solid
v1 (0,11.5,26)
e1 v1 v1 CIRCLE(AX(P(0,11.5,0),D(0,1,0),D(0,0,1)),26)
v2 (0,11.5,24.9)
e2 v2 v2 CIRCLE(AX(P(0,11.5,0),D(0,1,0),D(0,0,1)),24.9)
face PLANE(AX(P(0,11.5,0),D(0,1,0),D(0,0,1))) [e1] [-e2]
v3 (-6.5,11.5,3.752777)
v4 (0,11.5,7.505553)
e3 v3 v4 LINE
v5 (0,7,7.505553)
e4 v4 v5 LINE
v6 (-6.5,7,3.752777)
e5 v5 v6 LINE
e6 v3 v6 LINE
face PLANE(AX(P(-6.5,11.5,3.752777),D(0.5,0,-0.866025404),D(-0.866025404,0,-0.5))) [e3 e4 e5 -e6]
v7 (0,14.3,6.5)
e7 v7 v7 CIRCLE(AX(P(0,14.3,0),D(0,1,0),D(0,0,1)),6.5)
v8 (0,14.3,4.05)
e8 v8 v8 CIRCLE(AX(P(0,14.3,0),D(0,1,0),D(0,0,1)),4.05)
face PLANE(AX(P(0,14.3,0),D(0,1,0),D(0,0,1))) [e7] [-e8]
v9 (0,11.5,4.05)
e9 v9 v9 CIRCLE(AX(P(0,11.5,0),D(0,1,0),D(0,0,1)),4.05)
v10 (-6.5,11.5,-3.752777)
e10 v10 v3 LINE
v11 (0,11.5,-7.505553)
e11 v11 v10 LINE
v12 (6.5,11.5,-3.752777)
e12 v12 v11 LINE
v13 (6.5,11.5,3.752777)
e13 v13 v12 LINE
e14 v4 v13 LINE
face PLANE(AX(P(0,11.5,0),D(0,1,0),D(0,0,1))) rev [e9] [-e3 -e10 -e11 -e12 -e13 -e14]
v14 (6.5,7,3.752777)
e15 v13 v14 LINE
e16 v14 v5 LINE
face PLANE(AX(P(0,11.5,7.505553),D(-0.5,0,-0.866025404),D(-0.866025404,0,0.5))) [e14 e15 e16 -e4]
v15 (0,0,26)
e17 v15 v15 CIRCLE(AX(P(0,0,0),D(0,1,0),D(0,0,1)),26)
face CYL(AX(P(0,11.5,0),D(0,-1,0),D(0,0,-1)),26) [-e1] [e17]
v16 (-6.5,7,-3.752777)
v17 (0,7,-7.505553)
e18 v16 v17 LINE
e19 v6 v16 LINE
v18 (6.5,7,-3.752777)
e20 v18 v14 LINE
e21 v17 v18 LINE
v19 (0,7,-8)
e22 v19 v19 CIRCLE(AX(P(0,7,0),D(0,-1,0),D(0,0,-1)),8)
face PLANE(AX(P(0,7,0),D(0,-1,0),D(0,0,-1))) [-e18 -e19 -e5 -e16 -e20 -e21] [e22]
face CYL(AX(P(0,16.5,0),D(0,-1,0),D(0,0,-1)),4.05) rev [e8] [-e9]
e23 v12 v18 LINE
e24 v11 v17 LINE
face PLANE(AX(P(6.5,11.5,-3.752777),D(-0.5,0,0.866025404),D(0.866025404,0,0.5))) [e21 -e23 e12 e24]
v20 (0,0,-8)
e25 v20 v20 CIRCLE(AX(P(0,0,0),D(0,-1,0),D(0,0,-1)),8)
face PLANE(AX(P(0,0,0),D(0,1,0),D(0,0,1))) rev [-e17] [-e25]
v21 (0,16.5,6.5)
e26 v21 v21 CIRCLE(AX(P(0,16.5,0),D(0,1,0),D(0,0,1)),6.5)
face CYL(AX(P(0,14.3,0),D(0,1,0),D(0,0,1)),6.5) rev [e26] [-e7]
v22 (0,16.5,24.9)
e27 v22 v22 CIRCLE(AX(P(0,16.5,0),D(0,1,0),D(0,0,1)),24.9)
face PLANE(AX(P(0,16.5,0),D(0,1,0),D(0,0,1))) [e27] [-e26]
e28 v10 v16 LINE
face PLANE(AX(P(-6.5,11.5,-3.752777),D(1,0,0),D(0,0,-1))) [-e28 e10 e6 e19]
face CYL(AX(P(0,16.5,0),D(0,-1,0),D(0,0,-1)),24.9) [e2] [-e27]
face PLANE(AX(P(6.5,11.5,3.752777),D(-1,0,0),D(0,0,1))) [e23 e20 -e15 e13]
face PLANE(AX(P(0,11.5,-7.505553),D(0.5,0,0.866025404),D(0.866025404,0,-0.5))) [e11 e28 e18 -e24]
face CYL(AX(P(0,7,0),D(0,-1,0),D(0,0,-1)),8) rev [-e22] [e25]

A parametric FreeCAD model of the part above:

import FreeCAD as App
import Part
import Sketcher
Q = App.Units.Quantity


def add_polygon(sketch, points):
    """Adds a closed chain of lines whose ends are joined by coincident constraints."""
    first, n = sketch.GeometryCount, len(points)
    for a, b in zip(points, points[1:] + points[:1]):
        sketch.addGeometry(Part.LineSegment(App.Vector(*a, 0), App.Vector(*b, 0)), False)
    for i in range(n):
        sketch.addConstraint(Sketcher.Constraint("Coincident", first + i, 2, first + (i + 1) % n, 1))

doc = App.newDocument("Part")
body = doc.addObject("PartDesign::Body", "Body")

sketch1 = body.newObject("Sketcher::SketchObject", "Sketch")
sketch1.AttachmentSupport = (doc.getObject("XZ_Plane"), [""])
sketch1.MapMode = "FlatFace"
sketch1.addGeometry(Part.Circle(App.Vector(0, 0, 0), App.Vector(0, 0, 1), 26), False)
add_polygon(sketch1, [(-6, -4), (0, -8), (6, -4), (6, 4), (0, 8), (-6, 4)])
sketch1.addConstraint(Sketcher.Constraint("Vertical", 3))
sketch1.addConstraint(Sketcher.Constraint("Vertical", 6))
sketch1.addConstraint(Sketcher.Constraint("Coincident", 0, 3, -1, 1))
sketch1.addConstraint(Sketcher.Constraint("Symmetric", 1, 2, 4, 2, -1, 1))
sketch1.addConstraint(Sketcher.Constraint("Symmetric", 2, 2, 5, 2, -1, 1))
sketch1.addConstraint(Sketcher.Constraint("PointOnObject", 1, 2, -2))
sketch1.addConstraint(Sketcher.Constraint("Parallel", 1, 4))
sketch1.addConstraint(Sketcher.Constraint("Horizontal", 3, 2, 5, 2))
sketch1.addConstraint(Sketcher.Constraint("Diameter", 0, 52.0))
sketch1.addConstraint(Sketcher.Constraint("Angle", 1, Q("-30 deg")))
sketch1.addConstraint(Sketcher.Constraint("DistanceX", 5, 2, 3, 2, 13.0))
sketch1.addConstraint(Sketcher.Constraint("DistanceY", 3, 1, 3, 2, 7.505554))
pad1 = body.newObject("PartDesign::Pad", "Pad")
pad1.Profile = sketch1
pad1.Length = 11.5
pad1.Reversed = True

sketch2 = body.newObject("Sketcher::SketchObject", "Sketch001")
sketch2.AttachmentSupport = (doc.getObject("XZ_Plane"), [""])
sketch2.MapMode = "FlatFace"
sketch2.AttachmentOffset = App.Placement(App.Vector(0, 0, -11.5), App.Rotation())
sketch2.addGeometry(Part.Circle(App.Vector(0, 0, 0), App.Vector(0, 0, 1), 24.9), False)
sketch2.addGeometry(Part.Circle(App.Vector(0, 0, 0), App.Vector(0, 0, 1), 4), False)
sketch2.addConstraint(Sketcher.Constraint("Coincident", 0, 3, -1, 1))
sketch2.addConstraint(Sketcher.Constraint("Coincident", 1, 3, -1, 1))
sketch2.addConstraint(Sketcher.Constraint("Diameter", 0, 49.8))
sketch2.addConstraint(Sketcher.Constraint("Diameter", 1, 8.1))
pad2 = body.newObject("PartDesign::Pad", "Pad001")
pad2.Profile = sketch2
pad2.Length = 5
pad2.Reversed = True

sketch3 = body.newObject("Sketcher::SketchObject", "Sketch002")
sketch3.AttachmentSupport = (doc.getObject("XZ_Plane"), [""])
sketch3.MapMode = "FlatFace"
sketch3.addGeometry(Part.Circle(App.Vector(0, 0, 0), App.Vector(0, 0, 1), 8), False)
sketch3.addConstraint(Sketcher.Constraint("Coincident", 0, 3, -1, 1))
sketch3.addConstraint(Sketcher.Constraint("Diameter", 0, 16.0))
pocket1 = body.newObject("PartDesign::Pocket", "Pocket")
pocket1.Profile = sketch3
pocket1.Length = 7

sketch4 = body.newObject("Sketcher::SketchObject", "Sketch003")
sketch4.AttachmentSupport = (doc.getObject("XZ_Plane"), [""])
sketch4.MapMode = "FlatFace"
sketch4.AttachmentOffset = App.Placement(App.Vector(0, 0, -16.5), App.Rotation())
sketch4.addGeometry(Part.Circle(App.Vector(0, 0, 0), App.Vector(0, 0, 1), 6), False)
sketch4.addConstraint(Sketcher.Constraint("Coincident", 0, 3, -1, 1))
sketch4.addConstraint(Sketcher.Constraint("Diameter", 0, 13.0))
pocket2 = body.newObject("PartDesign::Pocket", "Pocket001")
pocket2.Profile = sketch4
pocket2.Length = 2.2
pocket2.Reversed = True

doc.recompute()
